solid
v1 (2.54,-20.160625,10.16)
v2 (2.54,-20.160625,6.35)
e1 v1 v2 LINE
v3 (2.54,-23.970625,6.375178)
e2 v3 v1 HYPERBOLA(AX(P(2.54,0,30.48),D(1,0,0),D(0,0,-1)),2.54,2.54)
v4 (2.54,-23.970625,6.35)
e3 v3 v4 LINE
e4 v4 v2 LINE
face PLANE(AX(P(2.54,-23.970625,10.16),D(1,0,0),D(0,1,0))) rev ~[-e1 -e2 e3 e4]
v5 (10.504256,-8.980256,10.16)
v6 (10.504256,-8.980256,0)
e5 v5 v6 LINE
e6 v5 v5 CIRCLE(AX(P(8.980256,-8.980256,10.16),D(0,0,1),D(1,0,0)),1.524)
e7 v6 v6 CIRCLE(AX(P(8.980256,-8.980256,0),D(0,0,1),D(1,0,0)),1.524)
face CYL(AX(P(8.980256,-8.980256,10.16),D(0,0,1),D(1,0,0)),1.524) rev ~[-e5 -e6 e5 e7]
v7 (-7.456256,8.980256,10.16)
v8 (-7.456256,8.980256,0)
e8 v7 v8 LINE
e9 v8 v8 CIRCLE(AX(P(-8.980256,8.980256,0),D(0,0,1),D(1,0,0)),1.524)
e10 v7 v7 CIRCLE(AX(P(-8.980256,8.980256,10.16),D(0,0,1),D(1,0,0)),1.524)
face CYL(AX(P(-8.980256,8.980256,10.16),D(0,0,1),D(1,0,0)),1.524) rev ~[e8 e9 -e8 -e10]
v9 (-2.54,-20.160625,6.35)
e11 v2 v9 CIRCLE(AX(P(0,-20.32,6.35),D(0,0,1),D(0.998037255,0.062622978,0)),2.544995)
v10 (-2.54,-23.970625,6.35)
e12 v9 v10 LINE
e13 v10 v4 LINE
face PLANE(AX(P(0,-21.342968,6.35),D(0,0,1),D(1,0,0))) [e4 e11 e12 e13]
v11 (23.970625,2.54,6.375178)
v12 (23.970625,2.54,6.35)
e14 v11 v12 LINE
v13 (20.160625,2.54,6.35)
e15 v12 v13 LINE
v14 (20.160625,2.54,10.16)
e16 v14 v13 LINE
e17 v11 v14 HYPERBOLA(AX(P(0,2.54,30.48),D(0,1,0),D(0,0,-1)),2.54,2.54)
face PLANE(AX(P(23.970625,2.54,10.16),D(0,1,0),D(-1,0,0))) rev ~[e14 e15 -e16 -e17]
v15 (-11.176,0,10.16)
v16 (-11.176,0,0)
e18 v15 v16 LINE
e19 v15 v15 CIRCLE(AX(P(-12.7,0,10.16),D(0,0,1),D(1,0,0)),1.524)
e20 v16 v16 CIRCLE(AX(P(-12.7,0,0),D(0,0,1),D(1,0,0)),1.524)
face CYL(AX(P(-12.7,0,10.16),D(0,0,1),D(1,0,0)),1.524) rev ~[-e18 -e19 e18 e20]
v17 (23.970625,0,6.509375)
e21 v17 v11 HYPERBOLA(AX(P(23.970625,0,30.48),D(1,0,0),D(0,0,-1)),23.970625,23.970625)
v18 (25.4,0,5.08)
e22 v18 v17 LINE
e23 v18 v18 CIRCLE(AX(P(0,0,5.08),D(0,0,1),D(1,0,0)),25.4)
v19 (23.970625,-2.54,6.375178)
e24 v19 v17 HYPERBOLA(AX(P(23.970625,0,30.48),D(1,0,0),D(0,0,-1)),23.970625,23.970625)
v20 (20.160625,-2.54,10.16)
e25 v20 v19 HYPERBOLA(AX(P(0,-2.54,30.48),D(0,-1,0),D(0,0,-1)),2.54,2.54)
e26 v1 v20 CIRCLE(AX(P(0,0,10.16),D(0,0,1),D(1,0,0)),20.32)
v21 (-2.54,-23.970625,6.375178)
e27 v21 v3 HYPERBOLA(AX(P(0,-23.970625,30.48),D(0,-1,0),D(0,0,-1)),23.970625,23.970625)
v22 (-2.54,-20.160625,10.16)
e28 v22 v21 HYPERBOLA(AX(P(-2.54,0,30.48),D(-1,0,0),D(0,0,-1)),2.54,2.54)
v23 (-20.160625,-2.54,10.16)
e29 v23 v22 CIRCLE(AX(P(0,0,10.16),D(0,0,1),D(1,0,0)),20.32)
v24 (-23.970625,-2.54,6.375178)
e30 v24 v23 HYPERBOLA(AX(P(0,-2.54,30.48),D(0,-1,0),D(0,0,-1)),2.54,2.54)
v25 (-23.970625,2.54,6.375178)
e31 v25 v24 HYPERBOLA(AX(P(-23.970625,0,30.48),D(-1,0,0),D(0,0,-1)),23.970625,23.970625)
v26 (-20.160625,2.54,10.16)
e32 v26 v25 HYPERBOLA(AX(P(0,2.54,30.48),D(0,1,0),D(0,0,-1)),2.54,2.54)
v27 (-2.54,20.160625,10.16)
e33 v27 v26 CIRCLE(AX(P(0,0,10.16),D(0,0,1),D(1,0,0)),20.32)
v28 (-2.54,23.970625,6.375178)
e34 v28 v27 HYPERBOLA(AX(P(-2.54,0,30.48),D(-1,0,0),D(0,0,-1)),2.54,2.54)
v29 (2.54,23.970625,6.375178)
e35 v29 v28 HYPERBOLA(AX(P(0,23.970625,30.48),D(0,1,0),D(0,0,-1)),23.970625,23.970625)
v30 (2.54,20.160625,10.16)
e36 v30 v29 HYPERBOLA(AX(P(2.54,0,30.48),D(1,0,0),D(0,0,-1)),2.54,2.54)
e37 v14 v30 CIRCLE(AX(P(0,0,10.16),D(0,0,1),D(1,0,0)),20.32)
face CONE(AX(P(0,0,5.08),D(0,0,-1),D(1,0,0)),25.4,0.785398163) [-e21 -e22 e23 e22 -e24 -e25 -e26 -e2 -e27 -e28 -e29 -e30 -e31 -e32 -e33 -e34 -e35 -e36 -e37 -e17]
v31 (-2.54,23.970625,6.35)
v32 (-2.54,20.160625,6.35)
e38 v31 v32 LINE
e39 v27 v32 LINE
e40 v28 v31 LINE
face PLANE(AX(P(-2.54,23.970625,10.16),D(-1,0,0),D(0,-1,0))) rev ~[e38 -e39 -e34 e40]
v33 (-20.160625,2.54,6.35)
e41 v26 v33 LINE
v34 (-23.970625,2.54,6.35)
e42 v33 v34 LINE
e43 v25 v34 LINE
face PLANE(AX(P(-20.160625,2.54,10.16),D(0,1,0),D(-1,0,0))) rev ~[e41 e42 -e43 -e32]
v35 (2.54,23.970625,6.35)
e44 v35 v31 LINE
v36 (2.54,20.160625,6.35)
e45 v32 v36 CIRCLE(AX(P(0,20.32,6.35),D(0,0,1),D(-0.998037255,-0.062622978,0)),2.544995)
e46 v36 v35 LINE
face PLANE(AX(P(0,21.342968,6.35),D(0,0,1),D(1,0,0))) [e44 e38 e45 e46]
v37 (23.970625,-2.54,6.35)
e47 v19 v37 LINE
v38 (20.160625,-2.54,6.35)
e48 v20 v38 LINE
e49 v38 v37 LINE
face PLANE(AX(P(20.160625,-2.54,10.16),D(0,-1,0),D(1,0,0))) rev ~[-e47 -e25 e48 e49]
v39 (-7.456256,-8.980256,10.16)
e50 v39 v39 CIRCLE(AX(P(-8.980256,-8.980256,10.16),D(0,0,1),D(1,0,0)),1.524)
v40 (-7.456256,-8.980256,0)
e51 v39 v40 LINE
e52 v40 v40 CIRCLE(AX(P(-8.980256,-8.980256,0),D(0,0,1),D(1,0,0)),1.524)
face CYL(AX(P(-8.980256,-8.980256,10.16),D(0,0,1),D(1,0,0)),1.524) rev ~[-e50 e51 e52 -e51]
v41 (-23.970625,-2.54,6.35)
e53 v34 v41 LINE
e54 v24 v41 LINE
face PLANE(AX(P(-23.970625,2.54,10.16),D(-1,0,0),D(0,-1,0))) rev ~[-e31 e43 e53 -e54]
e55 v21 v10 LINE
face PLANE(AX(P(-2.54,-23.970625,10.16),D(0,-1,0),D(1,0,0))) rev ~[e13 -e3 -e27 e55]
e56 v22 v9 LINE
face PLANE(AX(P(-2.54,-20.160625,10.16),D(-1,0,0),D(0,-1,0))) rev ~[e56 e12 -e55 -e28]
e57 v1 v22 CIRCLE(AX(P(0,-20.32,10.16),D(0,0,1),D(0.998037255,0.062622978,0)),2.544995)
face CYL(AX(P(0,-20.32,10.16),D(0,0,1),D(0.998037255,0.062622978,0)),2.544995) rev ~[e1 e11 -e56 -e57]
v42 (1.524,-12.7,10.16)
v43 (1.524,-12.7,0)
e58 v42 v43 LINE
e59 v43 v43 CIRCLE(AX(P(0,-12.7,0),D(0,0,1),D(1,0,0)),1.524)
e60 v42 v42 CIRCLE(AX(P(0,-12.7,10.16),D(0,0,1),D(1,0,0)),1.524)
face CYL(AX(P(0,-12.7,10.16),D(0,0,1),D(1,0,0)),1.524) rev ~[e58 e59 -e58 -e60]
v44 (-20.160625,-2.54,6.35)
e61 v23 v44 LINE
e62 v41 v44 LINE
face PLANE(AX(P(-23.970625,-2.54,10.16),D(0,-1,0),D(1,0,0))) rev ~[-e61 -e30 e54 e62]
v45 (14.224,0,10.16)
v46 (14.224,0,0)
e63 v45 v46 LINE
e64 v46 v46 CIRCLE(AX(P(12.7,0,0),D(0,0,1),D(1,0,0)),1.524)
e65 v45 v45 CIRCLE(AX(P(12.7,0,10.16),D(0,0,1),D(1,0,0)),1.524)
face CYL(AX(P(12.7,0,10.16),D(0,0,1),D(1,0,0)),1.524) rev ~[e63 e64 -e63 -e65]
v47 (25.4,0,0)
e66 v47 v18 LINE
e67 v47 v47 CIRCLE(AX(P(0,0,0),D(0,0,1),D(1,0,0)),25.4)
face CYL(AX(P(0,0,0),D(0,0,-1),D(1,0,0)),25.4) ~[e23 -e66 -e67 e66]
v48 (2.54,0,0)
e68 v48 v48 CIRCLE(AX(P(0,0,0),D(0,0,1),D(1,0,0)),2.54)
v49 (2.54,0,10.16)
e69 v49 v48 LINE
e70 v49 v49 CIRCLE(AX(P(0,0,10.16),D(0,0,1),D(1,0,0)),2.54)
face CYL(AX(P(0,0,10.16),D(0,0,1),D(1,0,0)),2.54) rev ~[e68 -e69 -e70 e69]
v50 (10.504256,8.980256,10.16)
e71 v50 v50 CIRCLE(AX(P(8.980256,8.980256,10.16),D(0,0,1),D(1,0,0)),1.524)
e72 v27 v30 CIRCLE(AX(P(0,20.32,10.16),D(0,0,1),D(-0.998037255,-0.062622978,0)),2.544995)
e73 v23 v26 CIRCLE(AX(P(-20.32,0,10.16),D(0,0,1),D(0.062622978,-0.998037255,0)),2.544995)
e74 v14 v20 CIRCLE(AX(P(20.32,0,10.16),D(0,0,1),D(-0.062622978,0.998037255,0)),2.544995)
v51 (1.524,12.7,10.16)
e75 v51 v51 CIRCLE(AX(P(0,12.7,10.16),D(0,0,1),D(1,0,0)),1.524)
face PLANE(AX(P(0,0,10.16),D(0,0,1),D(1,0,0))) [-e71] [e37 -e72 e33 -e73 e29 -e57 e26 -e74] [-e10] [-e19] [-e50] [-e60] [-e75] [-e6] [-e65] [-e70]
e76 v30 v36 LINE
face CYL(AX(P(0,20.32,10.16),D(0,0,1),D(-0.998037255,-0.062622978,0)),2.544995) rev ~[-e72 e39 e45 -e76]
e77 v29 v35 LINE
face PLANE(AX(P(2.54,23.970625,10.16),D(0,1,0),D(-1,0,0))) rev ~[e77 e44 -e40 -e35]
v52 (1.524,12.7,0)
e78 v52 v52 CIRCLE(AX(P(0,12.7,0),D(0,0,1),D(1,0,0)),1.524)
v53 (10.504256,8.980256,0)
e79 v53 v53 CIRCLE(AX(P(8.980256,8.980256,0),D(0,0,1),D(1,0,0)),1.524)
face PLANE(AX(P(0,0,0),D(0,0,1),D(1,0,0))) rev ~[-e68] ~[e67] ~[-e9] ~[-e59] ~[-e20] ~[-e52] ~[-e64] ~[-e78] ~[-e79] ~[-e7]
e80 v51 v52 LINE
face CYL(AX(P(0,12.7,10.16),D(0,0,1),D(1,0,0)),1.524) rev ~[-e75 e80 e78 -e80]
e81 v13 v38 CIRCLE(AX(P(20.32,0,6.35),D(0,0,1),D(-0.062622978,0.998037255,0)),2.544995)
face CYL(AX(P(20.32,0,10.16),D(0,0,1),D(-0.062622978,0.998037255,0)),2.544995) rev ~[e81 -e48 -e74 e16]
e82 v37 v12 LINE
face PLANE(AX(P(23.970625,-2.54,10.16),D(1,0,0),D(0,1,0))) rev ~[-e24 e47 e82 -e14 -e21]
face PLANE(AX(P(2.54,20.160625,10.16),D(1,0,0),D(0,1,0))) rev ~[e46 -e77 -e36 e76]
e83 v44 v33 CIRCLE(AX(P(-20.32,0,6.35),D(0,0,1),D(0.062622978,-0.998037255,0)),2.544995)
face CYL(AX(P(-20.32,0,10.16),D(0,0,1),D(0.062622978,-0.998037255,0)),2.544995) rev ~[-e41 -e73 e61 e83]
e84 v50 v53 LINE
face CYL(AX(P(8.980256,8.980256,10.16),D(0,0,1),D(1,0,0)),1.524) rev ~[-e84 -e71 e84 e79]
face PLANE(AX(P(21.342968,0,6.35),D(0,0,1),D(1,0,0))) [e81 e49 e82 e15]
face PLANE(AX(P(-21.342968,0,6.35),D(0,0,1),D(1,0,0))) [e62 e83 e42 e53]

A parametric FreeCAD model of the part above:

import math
import FreeCAD as App
import Part
import Sketcher

V = App.Vector
Q = App.Units.Quantity


def edges_at(feature, points):
    """Names of the edges that pass closest to the given points."""
    edges = feature.Shape.Edges
    near = lambda p: min(range(len(edges)), key=lambda i: edges[i].distToShape(Part.Vertex(*p))[0])
    return sorted({f"Edge{near(p) + 1}" for p in points})

doc = App.newDocument("Part")
body = doc.addObject("PartDesign::Body", "Body")

# Sketch on XY plane
sketch1 = body.newObject("Sketcher::SketchObject", "Sketch")
sketch1.AttachmentSupport = (doc.getObject("XY_Plane"), [""])
sketch1.MapMode = "FlatFace"
sketch1.addGeometry(Part.Circle(V(0, 0, 0), V(0, 0, 1), 25.4), False)
sketch1.addConstraint(Sketcher.Constraint("Coincident", 0, 3, -1, 1))
sketch1.addConstraint(Sketcher.Constraint("Diameter", 0, Q("2 in")))
pad1 = body.newObject("PartDesign::Pad", "Pad")
pad1.Profile = sketch1
pad1.Length = Q("0.4 in")
doc.recompute()

chamfer = body.newObject("PartDesign::Chamfer", "Chamfer")
chamfer.Base = (pad1, edges_at(pad1, [(-25.4, 0, 10.16)]))
chamfer.Size = Q("0.2 in")

# Sketch on XY plane
sketch2 = body.newObject("Sketcher::SketchObject", "Sketch001")
sketch2.AttachmentSupport = (doc.getObject("XY_Plane"), [""])
sketch2.MapMode = "FlatFace"
sketch2.AttachmentOffset = App.Placement(V(0, 0, 0.4 * 25.4), App.Rotation())
sketch2.addGeometry(Part.Circle(V(0, 0, 0), V(0, 0, 1), 2.54), False)
sketch2.addConstraint(Sketcher.Constraint("Coincident", 0, 3, -1, 1))
sketch2.addConstraint(Sketcher.Constraint("Diameter", 0, Q("0.2 in")))
pocket1 = body.newObject("PartDesign::Pocket", "Pocket")
pocket1.Profile = sketch2
pocket1.Type = "ThroughAll"

# Sketch on XY plane
sketch3 = body.newObject("Sketcher::SketchObject", "Sketch002")
sketch3.AttachmentSupport = (doc.getObject("XY_Plane"), [""])
sketch3.MapMode = "FlatFace"
sketch3.AttachmentOffset = App.Placement(V(0, 0, 0.4 * 25.4), App.Rotation())
sketch3.addGeometry(Part.Circle(V(-8.980256, -8.980256, 0), V(0, 0, 1), 1.524), False)
sketch3.addGeometry(Part.Circle(V(8.980256, -8.980256, 0), V(0, 0, 1), 1.524), False)
sketch3.addGeometry(Part.Circle(V(0, 12.7, 0), V(0, 0, 1), 1.524), False)
sketch3.addGeometry(Part.Circle(V(-8.980256, 8.980256, 0), V(0, 0, 1), 1.524), False)
sketch3.addGeometry(Part.Circle(V(-12.7, 0, 0), V(0, 0, 1), 1.524), False)
sketch3.addGeometry(Part.Circle(V(12.7, 0, 0), V(0, 0, 1), 1.524), False)
sketch3.addGeometry(Part.Circle(V(8.980256, 8.980256, 0), V(0, 0, 1), 1.524), False)
sketch3.addGeometry(Part.Circle(V(0, -12.7, 0), V(0, 0, 1), 1.524), False)
sketch3.addConstraint(Sketcher.Constraint("Equal", 0, 1))
sketch3.addConstraint(Sketcher.Constraint("Equal", 1, 2))
sketch3.addConstraint(Sketcher.Constraint("Equal", 2, 3))
sketch3.addConstraint(Sketcher.Constraint("Equal", 3, 4))
sketch3.addConstraint(Sketcher.Constraint("Equal", 4, 5))
sketch3.addConstraint(Sketcher.Constraint("Equal", 5, 6))
sketch3.addConstraint(Sketcher.Constraint("Equal", 6, 7))
sketch3.addConstraint(Sketcher.Constraint("Symmetric", 1, 3, 3, 3, -1, 1))
sketch3.addConstraint(Sketcher.Constraint("Symmetric", 4, 3, 5, 3, -1, 1))
sketch3.addConstraint(Sketcher.Constraint("Symmetric", 0, 3, 6, 3, -1, 1))
sketch3.addConstraint(Sketcher.Constraint("Symmetric", 2, 3, 7, 3, -1, 1))
sketch3.addConstraint(Sketcher.Constraint("Symmetric", 0, 3, 1, 3, -2))
sketch3.addConstraint(Sketcher.Constraint("PointOnObject", 2, 3, -2))
sketch3.addConstraint(Sketcher.Constraint("PointOnObject", 4, 3, -1))
sketch3.addConstraint(Sketcher.Constraint("Diameter", 0, Q("0.12 in")))
sketch3.addConstraint(Sketcher.Constraint("DistanceX", 4, 3, 5, 3, Q("1 in")))
sketch3.addConstraint(Sketcher.Constraint("DistanceY", -1, 1, 2, 3, Q("0.5 in")))
sketch3.addConstraint(Sketcher.Constraint("DistanceX", 0, 3, -1, 1, Q("8.980256 mm")))
sketch3.addConstraint(Sketcher.Constraint("DistanceY", 0, 3, -1, 1, Q("8.980256 mm")))
pocket2 = body.newObject("PartDesign::Pocket", "Pocket001")
pocket2.Profile = sketch3
pocket2.Type = "ThroughAll"

# Sketch on XY plane
sketch4 = body.newObject("Sketcher::SketchObject", "Sketch003")
sketch4.AttachmentSupport = (doc.getObject("XY_Plane"), [""])
sketch4.MapMode = "FlatFace"
sketch4.AttachmentOffset = App.Placement(V(0, 0, 0.4 * 25.4), App.Rotation())
sketch4.addGeometry(Part.LineSegment(V(23.970625, 2.54, 0), V(20.160625, 2.54, 0)), False)
sketch4.addGeometry(Part.ArcOfCircle(Part.Circle(V(20.32, 0, 0), V(0, 0, 1), 2.544995), math.radians(93.590382), math.radians(266.409618)), False)
sketch4.addGeometry(Part.LineSegment(V(20.160625, -2.54, 0), V(23.970625, -2.54, 0)), False)
sketch4.addGeometry(Part.LineSegment(V(23.970625, -2.54, 0), V(23.970625, 2.54, 0)), False)
sketch4.addGeometry(Part.LineSegment(V(-2.54, 23.970625, 0), V(-2.54, 20.160625, 0)), False)
sketch4.addGeometry(Part.ArcOfCircle(Part.Circle(V(0, 20.32, 0), V(0, 0, 1), 2.544995), math.radians(-176.409618), math.radians(-3.590382)), False)
sketch4.addGeometry(Part.LineSegment(V(2.54, 20.160625, 0), V(2.54, 23.970625, 0)), False)
sketch4.addGeometry(Part.LineSegment(V(2.54, 23.970625, 0), V(-2.54, 23.970625, 0)), False)
sketch4.addGeometry(Part.LineSegment(V(-23.970625, -2.54, 0), V(-20.160625, -2.54, 0)), False)
sketch4.addGeometry(Part.ArcOfCircle(Part.Circle(V(-20.32, 0, 0), V(0, 0, 1), 2.544995), math.radians(-86.409618), math.radians(86.409618)), False)
sketch4.addGeometry(Part.LineSegment(V(-20.160625, 2.54, 0), V(-23.970625, 2.54, 0)), False)
sketch4.addGeometry(Part.LineSegment(V(-23.970625, 2.54, 0), V(-23.970625, -2.54, 0)), False)
sketch4.addGeometry(Part.LineSegment(V(2.54, -23.970625, 0), V(2.54, -20.160625, 0)), False)
sketch4.addGeometry(Part.ArcOfCircle(Part.Circle(V(0, -20.32, 0), V(0, 0, 1), 2.544995), math.radians(3.590382), math.radians(176.409618)), False)
sketch4.addGeometry(Part.LineSegment(V(-2.54, -20.160625, 0), V(-2.54, -23.970625, 0)), False)
sketch4.addGeometry(Part.LineSegment(V(-2.54, -23.970625, 0), V(2.54, -23.970625, 0)), False)
sketch4.addConstraint(Sketcher.Constraint("Coincident", 0, 2, 1, 1))
sketch4.addConstraint(Sketcher.Constraint("Coincident", 1, 2, 2, 1))
sketch4.addConstraint(Sketcher.Constraint("Coincident", 2, 2, 3, 1))
sketch4.addConstraint(Sketcher.Constraint("Coincident", 3, 2, 0, 1))
sketch4.addConstraint(Sketcher.Constraint("Coincident", 4, 2, 5, 1))
sketch4.addConstraint(Sketcher.Constraint("Coincident", 5, 2, 6, 1))
sketch4.addConstraint(Sketcher.Constraint("Coincident", 6, 2, 7, 1))
sketch4.addConstraint(Sketcher.Constraint("Coincident", 7, 2, 4, 1))
sketch4.addConstraint(Sketcher.Constraint("Coincident", 8, 2, 9, 1))
sketch4.addConstraint(Sketcher.Constraint("Coincident", 9, 2, 10, 1))
sketch4.addConstraint(Sketcher.Constraint("Coincident", 10, 2, 11, 1))
sketch4.addConstraint(Sketcher.Constraint("Coincident", 11, 2, 8, 1))
sketch4.addConstraint(Sketcher.Constraint("Coincident", 12, 2, 13, 1))
sketch4.addConstraint(Sketcher.Constraint("Coincident", 13, 2, 14, 1))
sketch4.addConstraint(Sketcher.Constraint("Coincident", 14, 2, 15, 1))
sketch4.addConstraint(Sketcher.Constraint("Coincident", 15, 2, 12, 1))
sketch4.addConstraint(Sketcher.Constraint("Horizontal", 0))
sketch4.addConstraint(Sketcher.Constraint("Horizontal", 2))
sketch4.addConstraint(Sketcher.Constraint("Vertical", 3))
sketch4.addConstraint(Sketcher.Constraint("Vertical", 4))
sketch4.addConstraint(Sketcher.Constraint("Vertical", 6))
sketch4.addConstraint(Sketcher.Constraint("Horizontal", 7))
sketch4.addConstraint(Sketcher.Constraint("Horizontal", 8))
sketch4.addConstraint(Sketcher.Constraint("Horizontal", 10))
sketch4.addConstraint(Sketcher.Constraint("Vertical", 11))
sketch4.addConstraint(Sketcher.Constraint("Vertical", 12))
sketch4.addConstraint(Sketcher.Constraint("Vertical", 14))
sketch4.addConstraint(Sketcher.Constraint("Horizontal", 15))
sketch4.addConstraint(Sketcher.Constraint("Equal", 1, 5))
sketch4.addConstraint(Sketcher.Constraint("Equal", 5, 9))
sketch4.addConstraint(Sketcher.Constraint("Equal", 9, 13))
sketch4.addConstraint(Sketcher.Constraint("Symmetric", 1, 3, 9, 3, -1, 1))
sketch4.addConstraint(Sketcher.Constraint("Symmetric", 5, 3, 13, 3, -1, 1))
sketch4.addConstraint(Sketcher.Constraint("Symmetric", 2, 2, 10, 2, -1, 1))
sketch4.addConstraint(Sketcher.Constraint("Symmetric", 6, 2, 14, 2, -1, 1))
sketch4.addConstraint(Sketcher.Constraint("Symmetric", 4, 2, 5, 2, -2))
sketch4.addConstraint(Sketcher.Constraint("Symmetric", 1, 2, 8, 2, -2))
sketch4.addConstraint(Sketcher.Constraint("Horizontal", 3, 2, 9, 2))
sketch4.addConstraint(Sketcher.Constraint("Horizontal", 12, 2, 13, 2))
sketch4.addConstraint(Sketcher.Constraint("Equal", 15, 3))
sketch4.addConstraint(Sketcher.Constraint("Equal", 10, 4))
sketch4.addConstraint(Sketcher.Constraint("DistanceX", 7, 2, 7, 1, Q("0.2 in")))
sketch4.addConstraint(Sketcher.Constraint("DistanceX", 0, 2, 0, 1, Q("0.15 in")))
sketch4.addConstraint(Sketcher.Constraint("DistanceX", -1, 1, 1, 3, Q("0.8 in")))
sketch4.addConstraint(Sketcher.Constraint("DistanceY", -1, 1, 5, 3, Q("0.8 in")))
sketch4.addConstraint(Sketcher.Constraint("Radius", 1, Q("2.544995 mm")))
pocket3 = body.newObject("PartDesign::Pocket", "Pocket002")
pocket3.Profile = sketch4
pocket3.Length = Q("0.15 in")

doc.recompute()
